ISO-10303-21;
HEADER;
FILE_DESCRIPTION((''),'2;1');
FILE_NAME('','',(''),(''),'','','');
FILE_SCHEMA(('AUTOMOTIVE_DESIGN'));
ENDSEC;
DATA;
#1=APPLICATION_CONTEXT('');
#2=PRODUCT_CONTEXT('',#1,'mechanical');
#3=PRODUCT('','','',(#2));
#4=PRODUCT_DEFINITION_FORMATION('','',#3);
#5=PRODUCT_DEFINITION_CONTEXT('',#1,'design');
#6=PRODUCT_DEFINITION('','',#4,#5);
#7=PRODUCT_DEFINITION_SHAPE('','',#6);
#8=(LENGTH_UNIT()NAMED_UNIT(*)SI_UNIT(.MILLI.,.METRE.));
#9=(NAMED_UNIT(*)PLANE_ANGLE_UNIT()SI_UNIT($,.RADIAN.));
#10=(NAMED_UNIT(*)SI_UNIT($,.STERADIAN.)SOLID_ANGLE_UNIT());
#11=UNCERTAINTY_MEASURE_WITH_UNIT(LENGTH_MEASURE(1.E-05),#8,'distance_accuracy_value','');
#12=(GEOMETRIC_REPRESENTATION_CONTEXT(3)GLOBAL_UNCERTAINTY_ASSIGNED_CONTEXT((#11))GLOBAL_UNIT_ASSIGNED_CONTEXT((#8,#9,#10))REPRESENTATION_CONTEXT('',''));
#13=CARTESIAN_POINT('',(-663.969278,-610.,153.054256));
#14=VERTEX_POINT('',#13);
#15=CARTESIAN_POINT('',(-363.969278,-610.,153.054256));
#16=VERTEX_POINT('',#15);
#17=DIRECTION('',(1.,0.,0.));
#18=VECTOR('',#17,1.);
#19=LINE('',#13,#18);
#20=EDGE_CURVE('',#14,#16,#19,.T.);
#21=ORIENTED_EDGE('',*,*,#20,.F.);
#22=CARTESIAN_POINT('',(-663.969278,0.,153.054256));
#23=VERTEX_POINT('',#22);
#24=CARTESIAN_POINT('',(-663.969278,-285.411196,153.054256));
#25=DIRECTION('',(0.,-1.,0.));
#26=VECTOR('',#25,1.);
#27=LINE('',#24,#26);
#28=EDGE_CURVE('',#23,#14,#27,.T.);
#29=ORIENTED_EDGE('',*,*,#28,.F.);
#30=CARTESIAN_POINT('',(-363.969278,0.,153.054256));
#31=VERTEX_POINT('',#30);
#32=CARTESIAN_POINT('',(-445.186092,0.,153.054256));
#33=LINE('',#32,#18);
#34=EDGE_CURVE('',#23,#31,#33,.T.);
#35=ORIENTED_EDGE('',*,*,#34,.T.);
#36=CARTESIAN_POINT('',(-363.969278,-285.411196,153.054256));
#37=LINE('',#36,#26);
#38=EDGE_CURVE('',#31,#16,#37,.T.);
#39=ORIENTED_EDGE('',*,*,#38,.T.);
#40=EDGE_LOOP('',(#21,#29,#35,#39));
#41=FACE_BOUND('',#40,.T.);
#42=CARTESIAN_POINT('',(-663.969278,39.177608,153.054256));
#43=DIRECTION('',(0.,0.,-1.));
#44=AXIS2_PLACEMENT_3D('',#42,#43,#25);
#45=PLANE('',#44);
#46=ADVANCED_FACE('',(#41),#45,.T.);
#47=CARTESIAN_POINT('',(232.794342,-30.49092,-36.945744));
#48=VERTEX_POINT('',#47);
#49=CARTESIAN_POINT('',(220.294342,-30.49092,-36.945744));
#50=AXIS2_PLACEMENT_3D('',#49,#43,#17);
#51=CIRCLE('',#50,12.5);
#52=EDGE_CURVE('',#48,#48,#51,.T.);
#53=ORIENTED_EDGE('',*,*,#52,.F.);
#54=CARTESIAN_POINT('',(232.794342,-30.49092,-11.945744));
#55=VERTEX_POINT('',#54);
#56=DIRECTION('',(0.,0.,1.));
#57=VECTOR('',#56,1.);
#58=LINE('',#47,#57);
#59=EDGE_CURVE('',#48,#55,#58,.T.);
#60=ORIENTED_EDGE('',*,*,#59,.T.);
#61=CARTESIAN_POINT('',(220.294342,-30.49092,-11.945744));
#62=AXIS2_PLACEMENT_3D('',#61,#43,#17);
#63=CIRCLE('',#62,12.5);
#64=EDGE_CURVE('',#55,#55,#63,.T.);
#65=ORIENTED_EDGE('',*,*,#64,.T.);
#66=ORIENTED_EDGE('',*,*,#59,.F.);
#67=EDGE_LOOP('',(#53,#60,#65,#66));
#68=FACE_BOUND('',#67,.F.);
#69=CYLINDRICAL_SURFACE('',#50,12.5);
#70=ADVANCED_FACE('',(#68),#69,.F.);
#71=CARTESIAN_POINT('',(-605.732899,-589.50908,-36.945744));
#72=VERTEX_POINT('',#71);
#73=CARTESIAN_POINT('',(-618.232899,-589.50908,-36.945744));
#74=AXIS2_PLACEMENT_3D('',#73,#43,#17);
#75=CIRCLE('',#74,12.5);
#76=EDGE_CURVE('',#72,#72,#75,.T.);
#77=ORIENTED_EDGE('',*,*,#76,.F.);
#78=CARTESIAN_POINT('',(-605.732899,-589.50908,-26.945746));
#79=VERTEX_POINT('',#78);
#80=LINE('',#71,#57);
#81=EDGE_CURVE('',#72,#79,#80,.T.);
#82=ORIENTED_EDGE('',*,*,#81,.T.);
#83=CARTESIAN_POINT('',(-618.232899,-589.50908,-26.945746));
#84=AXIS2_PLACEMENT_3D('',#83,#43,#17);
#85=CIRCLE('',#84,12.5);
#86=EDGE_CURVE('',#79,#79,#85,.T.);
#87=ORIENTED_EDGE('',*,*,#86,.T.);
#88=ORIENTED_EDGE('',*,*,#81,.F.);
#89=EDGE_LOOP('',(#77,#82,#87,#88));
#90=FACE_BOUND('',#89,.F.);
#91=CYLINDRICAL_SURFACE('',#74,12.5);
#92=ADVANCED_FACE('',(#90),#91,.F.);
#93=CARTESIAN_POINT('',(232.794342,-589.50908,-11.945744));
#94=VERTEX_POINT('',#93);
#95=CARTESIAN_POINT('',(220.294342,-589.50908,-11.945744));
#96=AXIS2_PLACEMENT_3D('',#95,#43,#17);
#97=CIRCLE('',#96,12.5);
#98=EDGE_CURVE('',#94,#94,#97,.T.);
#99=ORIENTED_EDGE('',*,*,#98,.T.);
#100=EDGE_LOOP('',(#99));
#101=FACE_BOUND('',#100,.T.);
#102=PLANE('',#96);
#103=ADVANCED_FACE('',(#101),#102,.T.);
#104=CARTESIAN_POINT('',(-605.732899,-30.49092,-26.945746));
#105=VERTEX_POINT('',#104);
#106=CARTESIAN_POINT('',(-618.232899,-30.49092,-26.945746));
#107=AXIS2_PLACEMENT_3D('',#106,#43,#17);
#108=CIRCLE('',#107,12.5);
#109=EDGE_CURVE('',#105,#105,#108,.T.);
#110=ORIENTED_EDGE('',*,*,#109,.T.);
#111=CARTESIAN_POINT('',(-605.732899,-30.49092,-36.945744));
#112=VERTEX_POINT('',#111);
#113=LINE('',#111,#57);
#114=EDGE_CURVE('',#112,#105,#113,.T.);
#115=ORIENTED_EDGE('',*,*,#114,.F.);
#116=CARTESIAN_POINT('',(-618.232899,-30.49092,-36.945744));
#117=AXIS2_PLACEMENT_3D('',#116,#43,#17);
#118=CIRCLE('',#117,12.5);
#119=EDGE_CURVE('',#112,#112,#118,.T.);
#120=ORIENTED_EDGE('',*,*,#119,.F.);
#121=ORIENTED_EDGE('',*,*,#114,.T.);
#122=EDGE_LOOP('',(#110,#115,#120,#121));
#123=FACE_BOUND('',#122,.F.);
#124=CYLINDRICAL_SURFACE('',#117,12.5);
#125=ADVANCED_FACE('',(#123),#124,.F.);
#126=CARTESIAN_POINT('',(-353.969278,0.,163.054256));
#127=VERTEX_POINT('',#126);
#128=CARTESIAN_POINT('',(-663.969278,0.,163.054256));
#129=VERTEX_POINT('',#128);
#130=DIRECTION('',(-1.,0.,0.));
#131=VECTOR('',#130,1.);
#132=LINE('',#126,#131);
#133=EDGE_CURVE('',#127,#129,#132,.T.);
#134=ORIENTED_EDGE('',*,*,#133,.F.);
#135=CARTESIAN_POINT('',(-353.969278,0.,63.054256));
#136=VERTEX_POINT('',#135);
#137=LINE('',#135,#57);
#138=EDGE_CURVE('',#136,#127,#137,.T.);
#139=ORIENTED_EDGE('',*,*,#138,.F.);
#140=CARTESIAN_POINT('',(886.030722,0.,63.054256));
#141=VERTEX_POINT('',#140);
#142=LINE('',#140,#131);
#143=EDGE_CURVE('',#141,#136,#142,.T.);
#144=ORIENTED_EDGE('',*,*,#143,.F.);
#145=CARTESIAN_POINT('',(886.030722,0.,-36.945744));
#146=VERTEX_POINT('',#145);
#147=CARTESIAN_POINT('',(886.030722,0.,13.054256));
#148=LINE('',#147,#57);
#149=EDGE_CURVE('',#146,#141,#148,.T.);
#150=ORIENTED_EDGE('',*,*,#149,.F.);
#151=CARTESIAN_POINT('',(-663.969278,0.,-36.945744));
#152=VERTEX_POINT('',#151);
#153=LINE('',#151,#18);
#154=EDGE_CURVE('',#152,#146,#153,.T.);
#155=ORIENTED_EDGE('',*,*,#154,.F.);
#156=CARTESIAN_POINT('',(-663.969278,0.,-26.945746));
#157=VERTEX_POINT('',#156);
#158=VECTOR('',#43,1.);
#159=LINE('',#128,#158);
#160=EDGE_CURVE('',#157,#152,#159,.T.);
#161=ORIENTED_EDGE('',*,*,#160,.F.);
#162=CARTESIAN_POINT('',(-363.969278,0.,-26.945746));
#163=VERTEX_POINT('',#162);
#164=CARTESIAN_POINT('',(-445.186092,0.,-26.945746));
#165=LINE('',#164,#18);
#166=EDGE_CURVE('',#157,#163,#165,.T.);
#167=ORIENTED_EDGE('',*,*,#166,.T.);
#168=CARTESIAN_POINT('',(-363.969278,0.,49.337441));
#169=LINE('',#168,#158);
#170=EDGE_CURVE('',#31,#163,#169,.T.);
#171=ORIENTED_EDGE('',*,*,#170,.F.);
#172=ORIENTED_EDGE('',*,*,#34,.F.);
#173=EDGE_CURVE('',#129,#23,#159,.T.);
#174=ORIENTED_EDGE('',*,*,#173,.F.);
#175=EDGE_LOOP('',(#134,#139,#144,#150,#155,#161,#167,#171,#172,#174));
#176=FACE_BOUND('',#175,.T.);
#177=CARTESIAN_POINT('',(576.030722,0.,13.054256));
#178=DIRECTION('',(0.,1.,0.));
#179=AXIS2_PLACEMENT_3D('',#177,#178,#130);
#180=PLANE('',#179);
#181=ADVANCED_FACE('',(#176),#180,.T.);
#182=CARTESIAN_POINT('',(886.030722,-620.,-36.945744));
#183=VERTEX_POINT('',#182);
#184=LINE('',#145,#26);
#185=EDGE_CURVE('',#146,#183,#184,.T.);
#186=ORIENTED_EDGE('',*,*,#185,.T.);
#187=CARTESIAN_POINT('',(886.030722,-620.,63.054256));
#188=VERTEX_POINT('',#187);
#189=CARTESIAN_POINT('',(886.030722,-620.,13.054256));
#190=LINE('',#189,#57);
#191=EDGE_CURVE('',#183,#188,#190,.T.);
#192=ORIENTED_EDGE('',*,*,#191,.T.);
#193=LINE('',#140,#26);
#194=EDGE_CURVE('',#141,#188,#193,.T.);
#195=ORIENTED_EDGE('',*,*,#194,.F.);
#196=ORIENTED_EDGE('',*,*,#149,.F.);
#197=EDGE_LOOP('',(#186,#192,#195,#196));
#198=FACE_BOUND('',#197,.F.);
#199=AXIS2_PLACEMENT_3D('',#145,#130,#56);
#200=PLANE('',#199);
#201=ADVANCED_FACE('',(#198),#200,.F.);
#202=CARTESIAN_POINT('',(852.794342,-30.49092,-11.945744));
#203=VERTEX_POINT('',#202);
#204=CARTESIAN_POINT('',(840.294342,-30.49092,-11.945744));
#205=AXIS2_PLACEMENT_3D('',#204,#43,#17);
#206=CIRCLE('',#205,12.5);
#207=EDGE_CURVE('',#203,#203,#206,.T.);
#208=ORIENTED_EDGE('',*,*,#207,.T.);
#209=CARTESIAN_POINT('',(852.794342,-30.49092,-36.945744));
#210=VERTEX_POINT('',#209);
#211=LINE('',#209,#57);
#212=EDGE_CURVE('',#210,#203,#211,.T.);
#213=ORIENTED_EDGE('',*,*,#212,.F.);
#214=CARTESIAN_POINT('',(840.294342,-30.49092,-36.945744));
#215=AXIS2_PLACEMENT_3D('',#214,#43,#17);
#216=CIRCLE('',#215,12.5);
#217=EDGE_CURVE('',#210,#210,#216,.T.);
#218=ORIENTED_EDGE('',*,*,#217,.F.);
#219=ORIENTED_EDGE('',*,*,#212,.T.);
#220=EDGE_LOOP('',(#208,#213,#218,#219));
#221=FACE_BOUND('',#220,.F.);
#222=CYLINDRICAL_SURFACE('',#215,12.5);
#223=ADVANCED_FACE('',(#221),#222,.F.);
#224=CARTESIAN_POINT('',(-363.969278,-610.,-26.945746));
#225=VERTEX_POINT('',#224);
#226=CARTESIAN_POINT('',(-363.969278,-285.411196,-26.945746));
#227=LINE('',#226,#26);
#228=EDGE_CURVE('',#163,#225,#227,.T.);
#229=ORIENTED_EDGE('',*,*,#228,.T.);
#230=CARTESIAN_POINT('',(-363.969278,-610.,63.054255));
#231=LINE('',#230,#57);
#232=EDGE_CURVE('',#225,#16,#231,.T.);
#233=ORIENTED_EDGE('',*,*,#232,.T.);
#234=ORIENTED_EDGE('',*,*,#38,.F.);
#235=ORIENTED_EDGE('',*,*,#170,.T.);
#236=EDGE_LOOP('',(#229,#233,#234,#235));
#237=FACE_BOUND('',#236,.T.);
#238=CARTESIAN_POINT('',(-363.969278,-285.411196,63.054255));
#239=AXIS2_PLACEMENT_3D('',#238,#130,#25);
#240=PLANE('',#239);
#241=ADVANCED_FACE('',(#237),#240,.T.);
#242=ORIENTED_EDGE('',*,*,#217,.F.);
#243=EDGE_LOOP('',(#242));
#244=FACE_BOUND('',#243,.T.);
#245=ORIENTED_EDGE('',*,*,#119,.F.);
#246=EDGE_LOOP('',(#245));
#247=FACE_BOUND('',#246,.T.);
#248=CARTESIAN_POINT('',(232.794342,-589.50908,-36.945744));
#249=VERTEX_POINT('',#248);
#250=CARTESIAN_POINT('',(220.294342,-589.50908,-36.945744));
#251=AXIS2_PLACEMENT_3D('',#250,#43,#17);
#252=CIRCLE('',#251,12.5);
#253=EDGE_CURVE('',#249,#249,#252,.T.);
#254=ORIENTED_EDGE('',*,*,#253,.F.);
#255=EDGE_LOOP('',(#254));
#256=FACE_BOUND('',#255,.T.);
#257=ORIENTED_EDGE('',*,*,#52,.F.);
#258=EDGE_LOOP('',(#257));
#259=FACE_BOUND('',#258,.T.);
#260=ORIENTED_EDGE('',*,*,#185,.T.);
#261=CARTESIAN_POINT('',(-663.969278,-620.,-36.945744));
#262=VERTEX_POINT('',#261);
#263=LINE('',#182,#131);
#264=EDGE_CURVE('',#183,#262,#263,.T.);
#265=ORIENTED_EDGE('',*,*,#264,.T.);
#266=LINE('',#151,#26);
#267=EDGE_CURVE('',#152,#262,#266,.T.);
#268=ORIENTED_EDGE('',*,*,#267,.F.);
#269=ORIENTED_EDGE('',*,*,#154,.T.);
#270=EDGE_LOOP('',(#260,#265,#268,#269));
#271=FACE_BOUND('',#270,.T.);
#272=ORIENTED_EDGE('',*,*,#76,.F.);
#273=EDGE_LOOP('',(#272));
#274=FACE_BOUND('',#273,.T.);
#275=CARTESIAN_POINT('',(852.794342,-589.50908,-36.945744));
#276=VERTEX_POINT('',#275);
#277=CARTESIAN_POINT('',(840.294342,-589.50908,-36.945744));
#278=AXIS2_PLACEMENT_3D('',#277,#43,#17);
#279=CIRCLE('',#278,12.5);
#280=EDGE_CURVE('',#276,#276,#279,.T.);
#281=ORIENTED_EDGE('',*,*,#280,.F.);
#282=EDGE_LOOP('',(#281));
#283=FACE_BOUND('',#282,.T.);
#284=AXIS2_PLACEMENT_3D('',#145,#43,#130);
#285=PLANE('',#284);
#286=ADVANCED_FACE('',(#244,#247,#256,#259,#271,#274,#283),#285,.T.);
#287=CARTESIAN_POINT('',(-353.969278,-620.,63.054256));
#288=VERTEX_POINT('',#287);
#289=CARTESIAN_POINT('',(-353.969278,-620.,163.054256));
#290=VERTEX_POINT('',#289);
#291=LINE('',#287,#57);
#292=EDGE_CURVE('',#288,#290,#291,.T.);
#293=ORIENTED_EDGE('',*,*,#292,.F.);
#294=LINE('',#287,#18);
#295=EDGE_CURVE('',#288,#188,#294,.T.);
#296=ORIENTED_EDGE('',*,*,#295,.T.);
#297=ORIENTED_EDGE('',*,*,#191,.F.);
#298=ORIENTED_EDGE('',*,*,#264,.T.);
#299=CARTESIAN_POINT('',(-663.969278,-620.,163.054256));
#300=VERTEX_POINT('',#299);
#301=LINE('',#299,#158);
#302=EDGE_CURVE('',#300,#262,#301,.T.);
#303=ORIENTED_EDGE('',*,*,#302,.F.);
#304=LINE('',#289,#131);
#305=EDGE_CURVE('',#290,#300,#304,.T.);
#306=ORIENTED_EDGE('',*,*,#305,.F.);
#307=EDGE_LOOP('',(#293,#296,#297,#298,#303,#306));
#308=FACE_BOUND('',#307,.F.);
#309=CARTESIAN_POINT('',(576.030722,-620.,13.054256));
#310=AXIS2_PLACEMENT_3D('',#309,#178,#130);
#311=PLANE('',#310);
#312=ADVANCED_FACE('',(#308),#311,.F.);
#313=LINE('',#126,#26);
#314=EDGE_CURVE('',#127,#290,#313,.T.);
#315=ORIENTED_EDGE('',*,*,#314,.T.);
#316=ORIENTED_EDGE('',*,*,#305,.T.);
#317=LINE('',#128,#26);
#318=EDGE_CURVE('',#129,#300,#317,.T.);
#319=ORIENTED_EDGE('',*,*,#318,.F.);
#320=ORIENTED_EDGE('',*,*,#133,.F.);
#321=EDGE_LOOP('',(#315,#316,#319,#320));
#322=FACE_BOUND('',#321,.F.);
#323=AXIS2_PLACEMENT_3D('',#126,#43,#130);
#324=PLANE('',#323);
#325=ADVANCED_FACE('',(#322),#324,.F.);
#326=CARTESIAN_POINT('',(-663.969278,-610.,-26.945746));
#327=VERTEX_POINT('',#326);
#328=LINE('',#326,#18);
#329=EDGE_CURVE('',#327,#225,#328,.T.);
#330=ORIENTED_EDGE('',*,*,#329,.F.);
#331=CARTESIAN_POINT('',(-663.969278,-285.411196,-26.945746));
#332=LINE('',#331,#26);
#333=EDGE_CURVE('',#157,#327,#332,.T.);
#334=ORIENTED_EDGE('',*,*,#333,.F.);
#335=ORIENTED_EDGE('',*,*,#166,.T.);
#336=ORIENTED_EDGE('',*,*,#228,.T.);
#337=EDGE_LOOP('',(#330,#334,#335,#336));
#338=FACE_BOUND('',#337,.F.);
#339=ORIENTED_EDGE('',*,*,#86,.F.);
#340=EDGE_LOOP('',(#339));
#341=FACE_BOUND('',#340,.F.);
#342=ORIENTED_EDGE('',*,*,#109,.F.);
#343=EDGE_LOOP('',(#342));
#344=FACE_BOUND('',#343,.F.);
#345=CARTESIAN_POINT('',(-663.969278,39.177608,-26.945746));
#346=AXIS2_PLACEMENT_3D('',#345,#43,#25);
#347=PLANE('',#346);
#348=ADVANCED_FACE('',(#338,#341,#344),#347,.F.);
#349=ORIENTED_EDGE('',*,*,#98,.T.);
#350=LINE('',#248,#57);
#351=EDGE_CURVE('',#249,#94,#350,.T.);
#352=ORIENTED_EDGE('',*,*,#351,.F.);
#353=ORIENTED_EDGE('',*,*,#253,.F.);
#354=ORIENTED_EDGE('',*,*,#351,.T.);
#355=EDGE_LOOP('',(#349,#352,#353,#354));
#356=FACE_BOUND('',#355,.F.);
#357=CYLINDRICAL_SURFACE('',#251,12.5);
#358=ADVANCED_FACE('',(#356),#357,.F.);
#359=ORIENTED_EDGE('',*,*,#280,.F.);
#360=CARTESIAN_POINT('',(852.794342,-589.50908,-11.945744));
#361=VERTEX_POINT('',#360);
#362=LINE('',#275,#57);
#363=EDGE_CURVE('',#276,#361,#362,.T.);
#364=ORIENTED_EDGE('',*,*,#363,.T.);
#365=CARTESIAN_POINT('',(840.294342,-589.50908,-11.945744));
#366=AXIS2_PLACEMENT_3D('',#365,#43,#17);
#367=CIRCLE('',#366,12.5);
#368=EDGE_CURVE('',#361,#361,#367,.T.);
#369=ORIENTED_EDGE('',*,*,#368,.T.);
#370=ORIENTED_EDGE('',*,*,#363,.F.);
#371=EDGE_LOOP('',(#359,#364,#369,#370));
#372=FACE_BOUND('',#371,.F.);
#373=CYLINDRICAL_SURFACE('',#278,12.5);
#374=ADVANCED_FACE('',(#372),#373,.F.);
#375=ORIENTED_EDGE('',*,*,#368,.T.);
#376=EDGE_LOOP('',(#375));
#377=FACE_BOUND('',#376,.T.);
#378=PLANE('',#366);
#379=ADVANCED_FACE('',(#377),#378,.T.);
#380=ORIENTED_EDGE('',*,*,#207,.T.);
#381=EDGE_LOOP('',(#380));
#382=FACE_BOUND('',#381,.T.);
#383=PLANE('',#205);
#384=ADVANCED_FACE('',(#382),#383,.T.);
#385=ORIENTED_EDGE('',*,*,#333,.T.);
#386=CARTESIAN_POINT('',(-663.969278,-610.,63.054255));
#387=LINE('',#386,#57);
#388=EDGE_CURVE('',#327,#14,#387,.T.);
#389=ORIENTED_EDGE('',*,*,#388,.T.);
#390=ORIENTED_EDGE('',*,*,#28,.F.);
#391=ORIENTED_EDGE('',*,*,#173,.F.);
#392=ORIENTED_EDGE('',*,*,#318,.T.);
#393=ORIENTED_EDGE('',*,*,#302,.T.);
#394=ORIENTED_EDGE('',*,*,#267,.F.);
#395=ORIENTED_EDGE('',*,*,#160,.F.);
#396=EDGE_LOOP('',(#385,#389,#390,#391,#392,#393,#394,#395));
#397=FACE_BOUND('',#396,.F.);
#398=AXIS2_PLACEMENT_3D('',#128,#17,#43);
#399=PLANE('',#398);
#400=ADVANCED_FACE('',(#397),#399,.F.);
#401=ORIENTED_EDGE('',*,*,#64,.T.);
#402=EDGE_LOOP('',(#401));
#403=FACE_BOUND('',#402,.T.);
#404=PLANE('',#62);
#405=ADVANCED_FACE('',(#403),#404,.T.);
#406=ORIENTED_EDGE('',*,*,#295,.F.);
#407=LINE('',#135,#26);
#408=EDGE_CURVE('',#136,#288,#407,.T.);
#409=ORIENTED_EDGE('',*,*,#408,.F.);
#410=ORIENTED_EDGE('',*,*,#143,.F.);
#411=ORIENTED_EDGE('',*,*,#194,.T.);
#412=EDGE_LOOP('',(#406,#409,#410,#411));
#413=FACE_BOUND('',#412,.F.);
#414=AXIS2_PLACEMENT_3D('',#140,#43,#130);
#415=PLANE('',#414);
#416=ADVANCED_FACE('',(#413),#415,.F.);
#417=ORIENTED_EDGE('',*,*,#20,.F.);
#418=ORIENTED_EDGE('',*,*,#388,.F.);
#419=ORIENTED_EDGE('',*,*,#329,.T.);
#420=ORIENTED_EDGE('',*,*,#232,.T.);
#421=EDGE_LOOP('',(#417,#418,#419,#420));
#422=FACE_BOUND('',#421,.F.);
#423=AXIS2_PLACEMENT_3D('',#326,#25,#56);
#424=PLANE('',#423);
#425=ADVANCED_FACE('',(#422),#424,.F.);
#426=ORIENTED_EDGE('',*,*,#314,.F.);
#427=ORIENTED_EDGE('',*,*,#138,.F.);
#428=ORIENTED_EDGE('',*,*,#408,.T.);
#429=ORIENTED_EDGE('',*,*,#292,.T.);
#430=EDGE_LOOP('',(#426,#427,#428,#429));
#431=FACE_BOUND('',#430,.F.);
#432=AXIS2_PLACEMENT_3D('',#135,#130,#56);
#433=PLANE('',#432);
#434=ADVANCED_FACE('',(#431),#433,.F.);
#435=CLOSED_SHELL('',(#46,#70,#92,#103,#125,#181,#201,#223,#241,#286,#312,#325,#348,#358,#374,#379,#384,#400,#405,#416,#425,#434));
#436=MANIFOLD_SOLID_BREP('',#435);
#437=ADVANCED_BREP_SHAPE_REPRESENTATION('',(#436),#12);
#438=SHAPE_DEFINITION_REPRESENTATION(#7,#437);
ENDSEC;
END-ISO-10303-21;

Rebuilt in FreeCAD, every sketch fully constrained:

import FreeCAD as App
import Part
import Sketcher
from FreeCAD import Vector


def add_polygon(sketch, points):
    """Adds a closed chain of lines whose ends are joined by coincident constraints."""
    first, n = sketch.GeometryCount, len(points)
    for a, b in zip(points, points[1:] + points[:1]):
        sketch.addGeometry(Part.LineSegment(App.Vector(*a, 0), App.Vector(*b, 0)), False)
    for i in range(n):
        sketch.addConstraint(Sketcher.Constraint("Coincident", first + i, 2, first + (i + 1) % n, 1))

doc = App.newDocument("Part")
body = doc.addObject("PartDesign::Body", "Body")

# Sketch on XZ plane
sketch1 = body.newObject("Sketcher::SketchObject", "Sketch")
sketch1.AttachmentSupport = (doc.getObject("XZ_Plane"), [""])
sketch1.MapMode = "FlatFace"
add_polygon(sketch1, [(266, -37), (266, 63), (-354, 63), (-354, 163), (-664, 163), (-664, -37)])  # lines 0-5
sketch1.addConstraint([
    Sketcher.Constraint("Vertical", 0),
    Sketcher.Constraint("Horizontal", 1),
    Sketcher.Constraint("Vertical", 2),
    Sketcher.Constraint("Horizontal", 3),
    Sketcher.Constraint("Vertical", 4),
    Sketcher.Constraint("Horizontal", 5),
    Sketcher.Constraint("Equal", 0, 2),
    Sketcher.Constraint("DistanceX", 1, 2, 1, 1, 620.0),
    Sketcher.Constraint("DistanceX", 3, 2, 3, 1, 310.0),
    Sketcher.Constraint("DistanceY", 0, 1, 0, 2, 100.0),
    Sketcher.Constraint("DistanceX", 3, 2, -1, 1, 663.969278),
    Sketcher.Constraint("DistanceY", -1, 1, 0, 2, 63.054256),
])
pad1 = body.newObject("PartDesign::Pad", "Pad")
pad1.Profile = sketch1
pad1.Length = 620

# Sketch on XY plane
sketch2 = body.newObject("Sketcher::SketchObject", "Sketch001")
sketch2.AttachmentSupport = (doc.getObject("XY_Plane"), [""])
sketch2.MapMode = "FlatFace"
sketch2.AttachmentOffset = App.Placement(Vector(0, 0, -36.945744), App.Rotation())
sketch2.addGeometry([
    Part.Circle(Vector(-618, -590, 0), Vector(0, 0, 1), 12),
    Part.Circle(Vector(-618, -30, 0), Vector(0, 0, 1), 12),
    Part.Circle(Vector(220, -590, 0), Vector(0, 0, 1), 12),
    Part.Circle(Vector(220, -30, 0), Vector(0, 0, 1), 12),
], False)
sketch2.addConstraint([
    Sketcher.Constraint("Equal", 0, 1),
    Sketcher.Constraint("Equal", 1, 2),
    Sketcher.Constraint("Equal", 2, 3),
    Sketcher.Constraint("Horizontal", 0, 3, 2, 3),
    Sketcher.Constraint("Horizontal", 1, 3, 3, 3),
    Sketcher.Constraint("Vertical", 0, 3, 1, 3),
    Sketcher.Constraint("Vertical", 2, 3, 3, 3),
    Sketcher.Constraint("Diameter", 0, 25.0),
    Sketcher.Constraint("DistanceX", 0, 3, -1, 1, 618.232899),
    Sketcher.Constraint("DistanceY", 0, 3, -1, 1, 589.50908),
    Sketcher.Constraint("DistanceY", 1, 3, -1, 1, 30.49092),
    Sketcher.Constraint("DistanceX", -1, 1, 2, 3, 220.294342),
])
pocket1 = body.newObject("PartDesign::Pocket", "Pocket")
pocket1.Profile = sketch2
pocket1.Length = 25
pocket1.Reversed = True

# Sketch on YZ plane
sketch3 = body.newObject("Sketcher::SketchObject", "Sketch002")
sketch3.AttachmentSupport = (doc.getObject("YZ_Plane"), [""])
sketch3.MapMode = "FlatFace"
sketch3.AttachmentOffset = App.Placement(Vector(0, 0, -663.969278), App.Rotation())
add_polygon(sketch3, [(39, 153), (39, -27), (-610, -27), (-610, 153)])  # lines 0-3
sketch3.addConstraint([
    Sketcher.Constraint("Vertical", 0),
    Sketcher.Constraint("Horizontal", 1),
    Sketcher.Constraint("Vertical", 2),
    Sketcher.Constraint("Horizontal", 3),
    Sketcher.Constraint("DistanceY", 0, 2, 0, 1, 180.000001),
    Sketcher.Constraint("DistanceX", 1, 2, -1, 1, 610.0),
    Sketcher.Constraint("DistanceX", 1, 2, 1, 1, 649.177608),
    Sketcher.Constraint("DistanceY", 0, 2, -1, 1, 26.945746),
])
pocket2 = body.newObject("PartDesign::Pocket", "Pocket001")
pocket2.Profile = sketch3
pocket2.Length = 300
pocket2.Reversed = True

# Sketch on XZ plane
sketch4 = body.newObject("Sketcher::SketchObject", "Sketch003")
sketch4.AttachmentSupport = (doc.getObject("XZ_Plane"), [""])
sketch4.MapMode = "FlatFace"
add_polygon(sketch4, [(886, 63), (886, -37), (266, -37), (266, 63)])  # lines 0-3
sketch4.addConstraint([
    Sketcher.Constraint("Vertical", 0),
    Sketcher.Constraint("Horizontal", 1),
    Sketcher.Constraint("Vertical", 2),
    Sketcher.Constraint("Horizontal", 3),
    Sketcher.Constraint("DistanceX", 1, 2, 1, 1, 620.0),
    Sketcher.Constraint("DistanceY", 0, 2, 0, 1, 100.0),
    Sketcher.Constraint("DistanceX", -1, 1, 0, 2, 886.030722),
    Sketcher.Constraint("DistanceY", 0, 2, -1, 1, 36.945744),
])
pad2 = body.newObject("PartDesign::Pad", "Pad001")
pad2.Profile = sketch4
pad2.Length = 620

# Sketch on XY plane
sketch5 = body.newObject("Sketcher::SketchObject", "Sketch004")
sketch5.AttachmentSupport = (doc.getObject("XY_Plane"), [""])
sketch5.MapMode = "FlatFace"
sketch5.AttachmentOffset = App.Placement(Vector(0, 0, -36.945744), App.Rotation())
sketch5.addGeometry([
    Part.Circle(Vector(840, -590, 0), Vector(0, 0, 1), 12),
    Part.Circle(Vector(840, -30, 0), Vector(0, 0, 1), 12),
], False)
sketch5.addConstraint([
    Sketcher.Constraint("Equal", 0, 1),
    Sketcher.Constraint("Vertical", 0, 3, 1, 3),
    Sketcher.Constraint("Diameter", 0, 25.0),
    Sketcher.Constraint("DistanceX", -1, 1, 0, 3, 840.294342),
    Sketcher.Constraint("DistanceY", 0, 3, -1, 1, 589.50908),
    Sketcher.Constraint("DistanceY", 1, 3, -1, 1, 30.49092),
])
pocket3 = body.newObject("PartDesign::Pocket", "Pocket002")
pocket3.Profile = sketch5
pocket3.Length = 25
pocket3.Reversed = True

doc.recompute()
